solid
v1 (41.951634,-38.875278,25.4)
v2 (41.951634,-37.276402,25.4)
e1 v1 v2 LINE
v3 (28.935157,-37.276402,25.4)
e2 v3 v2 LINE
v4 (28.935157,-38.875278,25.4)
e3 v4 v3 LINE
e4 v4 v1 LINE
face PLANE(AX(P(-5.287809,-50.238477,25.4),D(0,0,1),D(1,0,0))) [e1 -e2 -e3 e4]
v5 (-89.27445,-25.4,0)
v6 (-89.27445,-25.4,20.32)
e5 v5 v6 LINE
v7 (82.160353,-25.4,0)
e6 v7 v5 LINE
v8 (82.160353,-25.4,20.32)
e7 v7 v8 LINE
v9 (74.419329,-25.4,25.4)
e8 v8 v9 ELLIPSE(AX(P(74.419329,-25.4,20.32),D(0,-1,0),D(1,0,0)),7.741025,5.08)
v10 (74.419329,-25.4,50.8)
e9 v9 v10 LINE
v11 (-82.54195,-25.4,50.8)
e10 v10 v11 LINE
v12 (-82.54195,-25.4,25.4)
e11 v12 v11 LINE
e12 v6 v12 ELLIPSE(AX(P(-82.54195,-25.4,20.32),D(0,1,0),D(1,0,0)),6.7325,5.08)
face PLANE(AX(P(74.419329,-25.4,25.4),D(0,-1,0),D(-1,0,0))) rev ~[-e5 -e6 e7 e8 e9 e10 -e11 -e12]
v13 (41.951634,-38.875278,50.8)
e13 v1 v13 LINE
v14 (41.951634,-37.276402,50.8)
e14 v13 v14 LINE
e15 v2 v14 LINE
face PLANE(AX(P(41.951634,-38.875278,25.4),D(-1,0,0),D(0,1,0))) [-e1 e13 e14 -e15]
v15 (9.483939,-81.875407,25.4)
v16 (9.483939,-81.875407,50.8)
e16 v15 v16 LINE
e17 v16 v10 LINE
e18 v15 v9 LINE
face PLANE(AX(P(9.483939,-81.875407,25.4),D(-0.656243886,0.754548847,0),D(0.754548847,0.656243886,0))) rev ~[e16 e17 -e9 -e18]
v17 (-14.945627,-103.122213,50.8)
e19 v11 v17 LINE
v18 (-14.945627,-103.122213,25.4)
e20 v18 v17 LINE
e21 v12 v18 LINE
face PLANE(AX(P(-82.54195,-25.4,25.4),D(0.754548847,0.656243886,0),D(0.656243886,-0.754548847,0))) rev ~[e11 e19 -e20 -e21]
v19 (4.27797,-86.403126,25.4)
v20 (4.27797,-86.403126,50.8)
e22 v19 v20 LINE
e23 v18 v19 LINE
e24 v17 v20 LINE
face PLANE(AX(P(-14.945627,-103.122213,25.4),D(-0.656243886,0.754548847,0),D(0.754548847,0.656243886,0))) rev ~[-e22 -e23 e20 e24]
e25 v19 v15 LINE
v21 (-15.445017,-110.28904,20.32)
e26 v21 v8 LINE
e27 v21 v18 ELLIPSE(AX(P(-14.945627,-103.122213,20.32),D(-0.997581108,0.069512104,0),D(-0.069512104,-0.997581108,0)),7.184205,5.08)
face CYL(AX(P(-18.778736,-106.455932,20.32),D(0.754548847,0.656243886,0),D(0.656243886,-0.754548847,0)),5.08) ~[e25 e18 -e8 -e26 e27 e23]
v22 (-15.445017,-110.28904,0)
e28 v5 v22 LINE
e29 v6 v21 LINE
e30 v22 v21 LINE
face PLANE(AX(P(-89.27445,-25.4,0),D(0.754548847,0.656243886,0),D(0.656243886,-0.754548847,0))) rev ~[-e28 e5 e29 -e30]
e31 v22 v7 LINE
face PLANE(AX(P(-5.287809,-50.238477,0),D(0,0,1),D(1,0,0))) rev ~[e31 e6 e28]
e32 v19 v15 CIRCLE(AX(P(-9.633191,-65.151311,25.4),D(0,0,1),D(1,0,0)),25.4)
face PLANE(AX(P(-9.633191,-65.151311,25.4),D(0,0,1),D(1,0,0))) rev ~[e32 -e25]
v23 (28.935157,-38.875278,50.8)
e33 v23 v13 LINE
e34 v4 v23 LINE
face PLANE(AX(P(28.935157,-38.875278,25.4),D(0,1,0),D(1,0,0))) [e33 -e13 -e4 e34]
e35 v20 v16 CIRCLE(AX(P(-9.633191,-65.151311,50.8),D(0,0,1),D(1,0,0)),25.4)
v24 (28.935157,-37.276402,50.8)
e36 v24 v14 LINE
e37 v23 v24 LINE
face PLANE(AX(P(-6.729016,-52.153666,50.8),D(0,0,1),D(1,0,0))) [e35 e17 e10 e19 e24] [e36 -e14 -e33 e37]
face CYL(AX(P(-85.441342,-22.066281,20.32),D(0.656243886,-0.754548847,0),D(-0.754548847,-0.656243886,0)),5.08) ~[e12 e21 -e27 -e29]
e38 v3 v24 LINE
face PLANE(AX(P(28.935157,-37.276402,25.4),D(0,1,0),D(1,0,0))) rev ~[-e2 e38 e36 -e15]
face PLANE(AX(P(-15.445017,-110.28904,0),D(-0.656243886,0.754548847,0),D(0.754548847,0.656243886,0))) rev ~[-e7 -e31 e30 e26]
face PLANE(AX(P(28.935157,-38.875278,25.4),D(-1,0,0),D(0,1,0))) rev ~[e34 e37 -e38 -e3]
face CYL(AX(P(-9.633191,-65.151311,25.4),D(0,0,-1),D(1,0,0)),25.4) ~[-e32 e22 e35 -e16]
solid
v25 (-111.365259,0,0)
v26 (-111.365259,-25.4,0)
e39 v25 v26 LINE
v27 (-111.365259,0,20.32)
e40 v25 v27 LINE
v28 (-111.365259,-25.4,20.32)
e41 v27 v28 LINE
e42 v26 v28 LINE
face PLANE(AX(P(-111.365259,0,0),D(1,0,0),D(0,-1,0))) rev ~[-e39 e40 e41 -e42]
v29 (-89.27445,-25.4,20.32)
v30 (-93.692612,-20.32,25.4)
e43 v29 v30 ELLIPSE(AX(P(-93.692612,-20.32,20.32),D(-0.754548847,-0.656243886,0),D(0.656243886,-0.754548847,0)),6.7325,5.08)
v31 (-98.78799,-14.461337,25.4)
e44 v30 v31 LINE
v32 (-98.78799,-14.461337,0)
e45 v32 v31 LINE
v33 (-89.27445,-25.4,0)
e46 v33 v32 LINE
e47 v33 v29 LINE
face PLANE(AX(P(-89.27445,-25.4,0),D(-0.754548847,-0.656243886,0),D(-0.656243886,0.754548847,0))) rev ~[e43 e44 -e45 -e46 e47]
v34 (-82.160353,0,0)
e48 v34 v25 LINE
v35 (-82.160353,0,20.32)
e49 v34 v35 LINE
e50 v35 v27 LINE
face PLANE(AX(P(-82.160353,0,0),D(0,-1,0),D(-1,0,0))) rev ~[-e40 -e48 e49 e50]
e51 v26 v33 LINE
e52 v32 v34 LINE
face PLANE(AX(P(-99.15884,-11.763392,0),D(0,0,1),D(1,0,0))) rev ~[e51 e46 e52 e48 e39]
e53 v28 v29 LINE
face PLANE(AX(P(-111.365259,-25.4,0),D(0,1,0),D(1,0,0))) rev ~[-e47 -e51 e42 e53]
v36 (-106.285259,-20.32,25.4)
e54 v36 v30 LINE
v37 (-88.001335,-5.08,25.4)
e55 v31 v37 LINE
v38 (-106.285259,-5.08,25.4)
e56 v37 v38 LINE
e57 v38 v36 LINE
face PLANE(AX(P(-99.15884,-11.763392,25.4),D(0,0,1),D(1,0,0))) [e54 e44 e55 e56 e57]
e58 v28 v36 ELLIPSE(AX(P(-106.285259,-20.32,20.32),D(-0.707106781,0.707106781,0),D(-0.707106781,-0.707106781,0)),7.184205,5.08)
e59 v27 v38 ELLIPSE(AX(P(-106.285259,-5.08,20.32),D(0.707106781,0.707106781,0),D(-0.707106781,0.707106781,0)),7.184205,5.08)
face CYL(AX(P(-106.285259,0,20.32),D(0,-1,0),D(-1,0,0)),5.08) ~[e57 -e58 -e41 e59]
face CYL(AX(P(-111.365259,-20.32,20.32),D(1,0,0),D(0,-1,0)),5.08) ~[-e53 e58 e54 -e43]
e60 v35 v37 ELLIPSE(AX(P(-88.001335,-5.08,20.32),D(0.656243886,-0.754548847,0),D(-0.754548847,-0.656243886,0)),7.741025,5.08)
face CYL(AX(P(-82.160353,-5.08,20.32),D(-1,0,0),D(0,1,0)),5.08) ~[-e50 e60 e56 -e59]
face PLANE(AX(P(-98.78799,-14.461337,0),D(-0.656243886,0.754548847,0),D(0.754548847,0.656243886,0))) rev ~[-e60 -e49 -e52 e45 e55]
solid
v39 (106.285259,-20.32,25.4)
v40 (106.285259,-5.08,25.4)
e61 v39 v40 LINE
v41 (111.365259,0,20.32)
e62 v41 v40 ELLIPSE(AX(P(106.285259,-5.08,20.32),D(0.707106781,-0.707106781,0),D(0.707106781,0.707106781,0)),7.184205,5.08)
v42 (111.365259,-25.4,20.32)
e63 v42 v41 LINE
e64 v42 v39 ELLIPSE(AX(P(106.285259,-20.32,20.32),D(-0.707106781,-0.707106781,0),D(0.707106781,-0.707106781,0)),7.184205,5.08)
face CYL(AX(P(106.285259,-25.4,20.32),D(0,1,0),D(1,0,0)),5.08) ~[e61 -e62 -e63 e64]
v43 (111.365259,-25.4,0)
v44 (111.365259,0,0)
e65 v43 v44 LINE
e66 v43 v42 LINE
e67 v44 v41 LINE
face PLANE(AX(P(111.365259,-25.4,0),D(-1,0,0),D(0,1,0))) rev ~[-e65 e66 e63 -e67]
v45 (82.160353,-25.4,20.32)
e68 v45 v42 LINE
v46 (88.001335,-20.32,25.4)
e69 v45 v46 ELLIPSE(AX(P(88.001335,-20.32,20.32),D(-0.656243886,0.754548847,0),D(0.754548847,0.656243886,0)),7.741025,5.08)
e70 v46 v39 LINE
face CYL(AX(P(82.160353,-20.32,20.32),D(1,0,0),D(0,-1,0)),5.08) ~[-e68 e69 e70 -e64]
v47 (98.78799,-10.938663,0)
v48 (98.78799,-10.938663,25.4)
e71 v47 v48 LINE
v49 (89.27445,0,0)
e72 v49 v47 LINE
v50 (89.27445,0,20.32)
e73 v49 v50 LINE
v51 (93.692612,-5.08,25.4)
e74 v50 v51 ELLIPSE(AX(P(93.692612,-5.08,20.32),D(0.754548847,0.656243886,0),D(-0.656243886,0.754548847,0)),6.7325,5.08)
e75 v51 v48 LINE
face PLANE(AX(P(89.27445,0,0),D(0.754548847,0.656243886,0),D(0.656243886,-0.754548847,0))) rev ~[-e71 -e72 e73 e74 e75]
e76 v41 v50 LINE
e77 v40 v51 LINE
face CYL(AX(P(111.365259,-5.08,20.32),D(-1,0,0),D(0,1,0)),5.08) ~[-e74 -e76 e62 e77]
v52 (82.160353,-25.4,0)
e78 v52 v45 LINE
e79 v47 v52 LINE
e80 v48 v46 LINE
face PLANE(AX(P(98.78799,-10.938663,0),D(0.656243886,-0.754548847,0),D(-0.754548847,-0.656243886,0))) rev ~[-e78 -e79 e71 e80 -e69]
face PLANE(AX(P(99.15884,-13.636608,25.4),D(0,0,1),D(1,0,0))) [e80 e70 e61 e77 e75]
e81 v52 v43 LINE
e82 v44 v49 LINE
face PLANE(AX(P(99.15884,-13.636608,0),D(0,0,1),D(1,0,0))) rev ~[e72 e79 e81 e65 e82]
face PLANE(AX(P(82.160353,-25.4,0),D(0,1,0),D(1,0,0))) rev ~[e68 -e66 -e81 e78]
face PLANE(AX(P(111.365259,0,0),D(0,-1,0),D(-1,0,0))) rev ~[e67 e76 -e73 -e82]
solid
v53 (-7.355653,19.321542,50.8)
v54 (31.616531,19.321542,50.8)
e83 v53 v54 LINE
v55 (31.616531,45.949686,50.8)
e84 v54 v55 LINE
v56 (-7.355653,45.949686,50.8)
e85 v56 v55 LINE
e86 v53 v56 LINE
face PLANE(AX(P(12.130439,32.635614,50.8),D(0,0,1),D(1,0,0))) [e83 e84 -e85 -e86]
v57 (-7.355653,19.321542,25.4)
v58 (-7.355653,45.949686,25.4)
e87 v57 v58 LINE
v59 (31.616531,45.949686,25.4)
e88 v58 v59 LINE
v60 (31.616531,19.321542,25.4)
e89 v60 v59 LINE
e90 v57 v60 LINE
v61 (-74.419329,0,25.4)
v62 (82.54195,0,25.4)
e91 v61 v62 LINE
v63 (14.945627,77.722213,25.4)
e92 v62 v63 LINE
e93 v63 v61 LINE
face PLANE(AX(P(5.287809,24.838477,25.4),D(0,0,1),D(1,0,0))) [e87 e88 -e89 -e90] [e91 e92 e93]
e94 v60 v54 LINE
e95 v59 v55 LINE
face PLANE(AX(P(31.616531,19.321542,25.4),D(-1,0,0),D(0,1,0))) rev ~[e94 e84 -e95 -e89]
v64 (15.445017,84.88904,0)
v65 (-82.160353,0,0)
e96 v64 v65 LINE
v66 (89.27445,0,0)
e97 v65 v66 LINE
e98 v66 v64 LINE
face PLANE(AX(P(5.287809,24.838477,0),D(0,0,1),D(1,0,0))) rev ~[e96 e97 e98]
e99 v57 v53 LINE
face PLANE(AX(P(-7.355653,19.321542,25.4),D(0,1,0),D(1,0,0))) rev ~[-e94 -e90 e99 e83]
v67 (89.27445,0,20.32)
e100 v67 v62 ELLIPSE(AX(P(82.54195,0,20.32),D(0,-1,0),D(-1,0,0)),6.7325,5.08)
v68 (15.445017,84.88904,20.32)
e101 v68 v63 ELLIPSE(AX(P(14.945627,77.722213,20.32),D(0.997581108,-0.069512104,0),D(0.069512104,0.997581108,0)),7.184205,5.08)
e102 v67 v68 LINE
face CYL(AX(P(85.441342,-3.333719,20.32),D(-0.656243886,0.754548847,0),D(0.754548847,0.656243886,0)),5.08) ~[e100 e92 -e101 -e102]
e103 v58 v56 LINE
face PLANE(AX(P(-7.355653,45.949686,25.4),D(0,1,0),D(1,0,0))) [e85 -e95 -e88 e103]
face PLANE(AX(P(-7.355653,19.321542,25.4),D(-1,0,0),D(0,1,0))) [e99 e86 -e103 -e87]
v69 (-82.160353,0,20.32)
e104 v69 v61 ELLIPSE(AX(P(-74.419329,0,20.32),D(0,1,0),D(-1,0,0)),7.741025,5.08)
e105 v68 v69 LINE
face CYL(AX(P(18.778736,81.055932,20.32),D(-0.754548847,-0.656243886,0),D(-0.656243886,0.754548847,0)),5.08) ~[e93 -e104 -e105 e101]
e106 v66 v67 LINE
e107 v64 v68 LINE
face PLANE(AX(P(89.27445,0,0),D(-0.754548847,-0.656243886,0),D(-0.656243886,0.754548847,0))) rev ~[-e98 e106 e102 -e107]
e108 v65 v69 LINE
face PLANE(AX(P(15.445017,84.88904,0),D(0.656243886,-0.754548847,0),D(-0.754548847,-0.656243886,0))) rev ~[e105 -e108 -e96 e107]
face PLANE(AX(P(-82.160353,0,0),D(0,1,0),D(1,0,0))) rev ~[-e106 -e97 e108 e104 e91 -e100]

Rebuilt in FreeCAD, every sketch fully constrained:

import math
import FreeCAD as App
import Part
import Sketcher

V = App.Vector
Q = App.Units.Quantity


def edges_at(feature, points):
    """Names of the edges that pass closest to the given points."""
    edges = feature.Shape.Edges
    near = lambda p: min(range(len(edges)), key=lambda i: edges[i].distToShape(Part.Vertex(*p))[0])
    return sorted({f"Edge{near(p) + 1}" for p in points})


def add_polygon(sketch, points):
    """Adds a closed chain of lines whose ends are joined by coincident constraints."""
    first, n = sketch.GeometryCount, len(points)
    for a, b in zip(points, points[1:] + points[:1]):
        sketch.addGeometry(Part.LineSegment(App.Vector(*a, 0), App.Vector(*b, 0)), False)
    for i in range(n):
        sketch.addConstraint(Sketcher.Constraint("Coincident", first + i, 2, first + (i + 1) % n, 1))

doc = App.newDocument("Part")
body = doc.addObject("PartDesign::Body", "Body")

sketch1 = doc.addObject("Sketcher::SketchObject", "Sketch")
body.addObject(sketch1)
sketch1.AttachmentSupport = (doc.XY_Plane, [""])
sketch1.MapMode = "FlatFace"
add_polygon(sketch1, [(-111, 0), (-111, -25), (-89, -25), (-99, -14), (-82, 0)])
sketch1.addConstraint([
    Sketcher.Constraint("Vertical", 0),
    Sketcher.Constraint("Horizontal", 1),
    Sketcher.Constraint("Horizontal", 4),
    Sketcher.Constraint("PointOnObject", 3, 2, -1),
    Sketcher.Constraint("Perpendicular", 2, 3),
    Sketcher.Constraint("DistanceY", 0, 2, 0, 1, Q("1 in")),
    Sketcher.Constraint("DistanceX", 1, 1, 1, 2, Q("22.090809 mm")),
    Sketcher.Constraint("Distance", 2, Q("14.496959 mm")),
    Sketcher.Constraint("DistanceX", 4, 2, 4, 1, Q("29.204906 mm")),
    Sketcher.Constraint("DistanceX", 0, 2, -1, 1, Q("111.365259 mm")),
])
pad1 = doc.addObject("PartDesign::Pad", "Pad")
body.addObject(pad1)
pad1.Profile = sketch1
pad1.Length = Q("1 in")
doc.recompute()

fillet = doc.addObject("PartDesign::Fillet", "Fillet")
body.addObject(fillet)
fillet.Base = (pad1, edges_at(pad1, [(-96.763, 0, 25.4), (-111.365, -12.7, 25.4), (-100.32, -25.4, 25.4)]))
fillet.Radius = Q("0.2 in")
body2 = doc.addObject("PartDesign::Body", "Body001")

sketch2 = doc.addObject("Sketcher::SketchObject", "Sketch001")
body2.addObject(sketch2)
sketch2.AttachmentSupport = (doc.getObject("XY_Plane001"), [""])
sketch2.MapMode = "FlatFace"
add_polygon(sketch2, [(99, -11), (82, -25), (111, -25), (111, 0), (89, 0)])
sketch2.addConstraint([
    Sketcher.Constraint("Horizontal", 1),
    Sketcher.Constraint("Vertical", 2),
    Sketcher.Constraint("Horizontal", 3),
    Sketcher.Constraint("PointOnObject", 2, 2, -1),
    Sketcher.Constraint("Perpendicular", 0, 4),
    Sketcher.Constraint("DistanceY", 2, 1, 2, 2, Q("1 in")),
    Sketcher.Constraint("DistanceX", 3, 2, 3, 1, Q("22.090809 mm")),
    Sketcher.Constraint("Distance", 4, Q("14.496959 mm")),
    Sketcher.Constraint("DistanceX", 1, 1, 1, 2, Q("29.204906 mm")),
    Sketcher.Constraint("DistanceX", -1, 1, 1, 2, Q("111.365259 mm")),
])
pad2 = doc.addObject("PartDesign::Pad", "Pad001")
body2.addObject(pad2)
pad2.Profile = sketch2
pad2.Length = Q("1 in")
doc.recompute()

fillet2 = doc.addObject("PartDesign::Fillet", "Fillet001")
body2.addObject(fillet2)
fillet2.Base = (pad2, edges_at(pad2, [(96.763, -25.4, 25.4), (111.365, -12.7, 25.4), (100.32, 0, 25.4)]))
fillet2.Radius = Q("0.2 in")
body3 = doc.addObject("PartDesign::Body", "Body002")

sketch3 = doc.addObject("Sketcher::SketchObject", "Sketch002")
body3.addObject(sketch3)
sketch3.AttachmentSupport = (doc.getObject("XY_Plane002"), [""])
sketch3.MapMode = "FlatFace"
add_polygon(sketch3, [(15, 85), (-82, 0), (89, 0)])
sketch3.addConstraint([
    Sketcher.Constraint("Horizontal", 1),
    Sketcher.Constraint("PointOnObject", 0, 2, -1),
    Sketcher.Constraint("Perpendicular", 0, 2),
    Sketcher.Constraint("Distance", 2, Q("112.503041 mm")),
    Sketcher.Constraint("DistanceX", 1, 1, 1, 2, Q("171.434803 mm")),
    Sketcher.Constraint("DistanceX", -1, 1, 1, 2, Q("89.27445 mm")),
])
pad3 = doc.addObject("PartDesign::Pad", "Pad002")
body3.addObject(pad3)
pad3.Profile = sketch3
pad3.Length = Q("1 in")
doc.recompute()

fillet3 = doc.addObject("PartDesign::Fillet", "Fillet002")
body3.addObject(fillet3)
fillet3.Base = (pad3, edges_at(pad3, [(52.36, 42.445, 25.4), (-33.358, 42.445, 25.4)]))
fillet3.Radius = Q("0.2 in")

sketch4 = doc.addObject("Sketcher::SketchObject", "Sketch003")
body3.addObject(sketch4)
sketch4.AttachmentSupport = (doc.getObject("XY_Plane002"), [""])
sketch4.MapMode = "FlatFace"
sketch4.AttachmentOffset = App.Placement(V(0, 0, 1 * 25.4), App.Rotation())
add_polygon(sketch4, [(-7, 46), (-7, 19), (32, 19), (32, 46)])
sketch4.addConstraint([
    Sketcher.Constraint("Vertical", 0),
    Sketcher.Constraint("Horizontal", 1),
    Sketcher.Constraint("Vertical", 2),
    Sketcher.Constraint("Horizontal", 3),
    Sketcher.Constraint("DistanceX", 1, 1, 1, 2, Q("38.972184 mm")),
    Sketcher.Constraint("DistanceY", 0, 2, 0, 1, Q("26.628144 mm")),
    Sketcher.Constraint("DistanceX", -1, 1, 1, 2, Q("31.616531 mm")),
    Sketcher.Constraint("DistanceY", -1, 1, 0, 2, Q("19.321542 mm")),
])
pad4 = doc.addObject("PartDesign::Pad", "Pad003")
body3.addObject(pad4)
pad4.Profile = sketch4
pad4.Length = Q("1 in")
body4 = doc.addObject("PartDesign::Body", "Body003")

sketch5 = doc.addObject("Sketcher::SketchObject", "Sketch004")
body4.addObject(sketch5)
sketch5.AttachmentSupport = (doc.getObject("XY_Plane003"), [""])
sketch5.MapMode = "FlatFace"
add_polygon(sketch5, [(82, -25), (-89, -25), (-15, -110)])
sketch5.addConstraint([
    Sketcher.Constraint("Horizontal", 0),
    Sketcher.Constraint("Perpendicular", 1, 2),
    Sketcher.Constraint("DistanceY", 0, 2, -1, 1, Q("1 in")),
    Sketcher.Constraint("Distance", 1, Q("112.503041 mm")),
    Sketcher.Constraint("DistanceX", 0, 2, 0, 1, Q("171.434803 mm")),
    Sketcher.Constraint("DistanceX", 0, 2, -1, 1, Q("89.27445 mm")),
])
pad5 = doc.addObject("PartDesign::Pad", "Pad004")
body4.addObject(pad5)
pad5.Profile = sketch5
pad5.Length = Q("1 in")
doc.recompute()

fillet4 = doc.addObject("PartDesign::Fillet", "Fillet003")
body4.addObject(fillet4)
fillet4.Base = (pad5, edges_at(pad5, [(-52.36, -67.845, 25.4), (33.358, -67.845, 25.4)]))
fillet4.Radius = Q("0.2 in")

sketch6 = doc.addObject("Sketcher::SketchObject", "Sketch005")
body4.addObject(sketch6)
sketch6.AttachmentSupport = (doc.getObject("XY_Plane003"), [""])
sketch6.MapMode = "FlatFace"
sketch6.AttachmentOffset = App.Placement(V(0, 0, 1 * 25.4), App.Rotation())
sketch6.addGeometry(Part.Circle(V(-10, -65, 0), V(0, 0, 1), 25), False)
sketch6.addConstraint([
    Sketcher.Constraint("Diameter", 0, Q("2 in")),
    Sketcher.Constraint("DistanceX", 0, 3, -1, 1, Q("9.633191 mm")),
    Sketcher.Constraint("DistanceY", 0, 3, -1, 1, Q("65.151311 mm")),
])
pad6 = doc.addObject("PartDesign::Pad", "Pad005")
body4.addObject(pad6)
pad6.Profile = sketch6
pad6.Length = Q("1 in")

sketch7 = doc.addObject("Sketcher::SketchObject", "Sketch006")
body4.addObject(sketch7)
sketch7.AttachmentSupport = (doc.getObject("XY_Plane003"), [""])
sketch7.MapMode = "FlatFace"
sketch7.AttachmentOffset = App.Placement(V(0, 0, 1 * 25.4), App.Rotation())
sketch7.addGeometry(Part.ArcOfCircle(Part.Circle(V(-9.6, -65.2, 0), V(0, 0, 1), 25.4), math.radians(-41), math.radians(0)), False)
sketch7.addGeometry(Part.LineSegment(V(9.5, -81.9, 0), V(74.4, -25.4, 0)), False)
sketch7.addGeometry(Part.LineSegment(V(74.4, -25.4, 0), V(-82.5, -25.4, 0)), False)
sketch7.addGeometry(Part.LineSegment(V(-82.5, -25.4, 0), V(-14.9, -103.1, 0)), False)
sketch7.addGeometry(Part.LineSegment(V(-14.9, -103.1, 0), V(4.3, -86.4, 0)), False)
sketch7.addGeometry(Part.ArcOfCircle(Part.Circle(V(-9.6, -65.2, 0), V(0, 0, 1), 25.4), math.radians(0), math.radians(303)), False)
add_polygon(sketch7, [(42, -38.9), (28.9, -38.9), (28.9, -37.3), (42, -37.3)])
sketch7.addConstraint([
    Sketcher.Constraint("Coincident", 0, 1, 1, 1),
    Sketcher.Constraint("Coincident", 1, 2, 2, 1),
    Sketcher.Constraint("Coincident", 2, 2, 3, 1),
    Sketcher.Constraint("Coincident", 3, 2, 4, 1),
    Sketcher.Constraint("Coincident", 4, 2, 5, 2),
    Sketcher.Constraint("Tangent", 5, 1, 0, 2),
    Sketcher.Constraint("Horizontal", 2),
    Sketcher.Constraint("Horizontal", 6),
    Sketcher.Constraint("Vertical", 7),
    Sketcher.Constraint("Horizontal", 8),
    Sketcher.Constraint("Vertical", 9),
    Sketcher.Constraint("Equal", 0, 5),
    Sketcher.Constraint("Perpendicular", 1, 3),
    Sketcher.Constraint("Perpendicular", 3, 4),
    Sketcher.Constraint("Horizontal", 0, 3, 5, 1),
    Sketcher.Constraint("Radius", 0, Q("1 in")),
    Sketcher.Constraint("DistanceY", 1, 2, -1, 1, Q("1 in")),
    Sketcher.Constraint("DistanceX", 2, 2, 2, 1, Q("156.961279 mm")),
    Sketcher.Constraint("DistanceY", 3, 2, 5, 3, Q("37.970902 mm")),
    Sketcher.Constraint("Distance", 3, Q("103.00488 mm")),
    Sketcher.Constraint("DistanceX", 6, 2, 6, 1, Q("13.016477 mm")),
    Sketcher.Constraint("DistanceY", 7, 1, 7, 2, Q("1.598876 mm")),
    Sketcher.Constraint("DistanceX", 0, 3, -1, 1, Q("9.633191 mm")),
    Sketcher.Constraint("DistanceY", 0, 3, -1, 1, Q("65.151311 mm")),
    Sketcher.Constraint("DistanceX", -1, 1, 0, 1, Q("9.483939 mm")),
    Sketcher.Constraint("DistanceY", 6, 2, -1, 1, Q("38.875278 mm")),
    Sketcher.Constraint("DistanceX", 0, 1, 6, 2, Q("19.451218 mm")),
])
pad7 = doc.addObject("PartDesign::Pad", "Pad006")
body4.addObject(pad7)
pad7.Profile = sketch7
pad7.Length = Q("1 in")

doc.recompute()
